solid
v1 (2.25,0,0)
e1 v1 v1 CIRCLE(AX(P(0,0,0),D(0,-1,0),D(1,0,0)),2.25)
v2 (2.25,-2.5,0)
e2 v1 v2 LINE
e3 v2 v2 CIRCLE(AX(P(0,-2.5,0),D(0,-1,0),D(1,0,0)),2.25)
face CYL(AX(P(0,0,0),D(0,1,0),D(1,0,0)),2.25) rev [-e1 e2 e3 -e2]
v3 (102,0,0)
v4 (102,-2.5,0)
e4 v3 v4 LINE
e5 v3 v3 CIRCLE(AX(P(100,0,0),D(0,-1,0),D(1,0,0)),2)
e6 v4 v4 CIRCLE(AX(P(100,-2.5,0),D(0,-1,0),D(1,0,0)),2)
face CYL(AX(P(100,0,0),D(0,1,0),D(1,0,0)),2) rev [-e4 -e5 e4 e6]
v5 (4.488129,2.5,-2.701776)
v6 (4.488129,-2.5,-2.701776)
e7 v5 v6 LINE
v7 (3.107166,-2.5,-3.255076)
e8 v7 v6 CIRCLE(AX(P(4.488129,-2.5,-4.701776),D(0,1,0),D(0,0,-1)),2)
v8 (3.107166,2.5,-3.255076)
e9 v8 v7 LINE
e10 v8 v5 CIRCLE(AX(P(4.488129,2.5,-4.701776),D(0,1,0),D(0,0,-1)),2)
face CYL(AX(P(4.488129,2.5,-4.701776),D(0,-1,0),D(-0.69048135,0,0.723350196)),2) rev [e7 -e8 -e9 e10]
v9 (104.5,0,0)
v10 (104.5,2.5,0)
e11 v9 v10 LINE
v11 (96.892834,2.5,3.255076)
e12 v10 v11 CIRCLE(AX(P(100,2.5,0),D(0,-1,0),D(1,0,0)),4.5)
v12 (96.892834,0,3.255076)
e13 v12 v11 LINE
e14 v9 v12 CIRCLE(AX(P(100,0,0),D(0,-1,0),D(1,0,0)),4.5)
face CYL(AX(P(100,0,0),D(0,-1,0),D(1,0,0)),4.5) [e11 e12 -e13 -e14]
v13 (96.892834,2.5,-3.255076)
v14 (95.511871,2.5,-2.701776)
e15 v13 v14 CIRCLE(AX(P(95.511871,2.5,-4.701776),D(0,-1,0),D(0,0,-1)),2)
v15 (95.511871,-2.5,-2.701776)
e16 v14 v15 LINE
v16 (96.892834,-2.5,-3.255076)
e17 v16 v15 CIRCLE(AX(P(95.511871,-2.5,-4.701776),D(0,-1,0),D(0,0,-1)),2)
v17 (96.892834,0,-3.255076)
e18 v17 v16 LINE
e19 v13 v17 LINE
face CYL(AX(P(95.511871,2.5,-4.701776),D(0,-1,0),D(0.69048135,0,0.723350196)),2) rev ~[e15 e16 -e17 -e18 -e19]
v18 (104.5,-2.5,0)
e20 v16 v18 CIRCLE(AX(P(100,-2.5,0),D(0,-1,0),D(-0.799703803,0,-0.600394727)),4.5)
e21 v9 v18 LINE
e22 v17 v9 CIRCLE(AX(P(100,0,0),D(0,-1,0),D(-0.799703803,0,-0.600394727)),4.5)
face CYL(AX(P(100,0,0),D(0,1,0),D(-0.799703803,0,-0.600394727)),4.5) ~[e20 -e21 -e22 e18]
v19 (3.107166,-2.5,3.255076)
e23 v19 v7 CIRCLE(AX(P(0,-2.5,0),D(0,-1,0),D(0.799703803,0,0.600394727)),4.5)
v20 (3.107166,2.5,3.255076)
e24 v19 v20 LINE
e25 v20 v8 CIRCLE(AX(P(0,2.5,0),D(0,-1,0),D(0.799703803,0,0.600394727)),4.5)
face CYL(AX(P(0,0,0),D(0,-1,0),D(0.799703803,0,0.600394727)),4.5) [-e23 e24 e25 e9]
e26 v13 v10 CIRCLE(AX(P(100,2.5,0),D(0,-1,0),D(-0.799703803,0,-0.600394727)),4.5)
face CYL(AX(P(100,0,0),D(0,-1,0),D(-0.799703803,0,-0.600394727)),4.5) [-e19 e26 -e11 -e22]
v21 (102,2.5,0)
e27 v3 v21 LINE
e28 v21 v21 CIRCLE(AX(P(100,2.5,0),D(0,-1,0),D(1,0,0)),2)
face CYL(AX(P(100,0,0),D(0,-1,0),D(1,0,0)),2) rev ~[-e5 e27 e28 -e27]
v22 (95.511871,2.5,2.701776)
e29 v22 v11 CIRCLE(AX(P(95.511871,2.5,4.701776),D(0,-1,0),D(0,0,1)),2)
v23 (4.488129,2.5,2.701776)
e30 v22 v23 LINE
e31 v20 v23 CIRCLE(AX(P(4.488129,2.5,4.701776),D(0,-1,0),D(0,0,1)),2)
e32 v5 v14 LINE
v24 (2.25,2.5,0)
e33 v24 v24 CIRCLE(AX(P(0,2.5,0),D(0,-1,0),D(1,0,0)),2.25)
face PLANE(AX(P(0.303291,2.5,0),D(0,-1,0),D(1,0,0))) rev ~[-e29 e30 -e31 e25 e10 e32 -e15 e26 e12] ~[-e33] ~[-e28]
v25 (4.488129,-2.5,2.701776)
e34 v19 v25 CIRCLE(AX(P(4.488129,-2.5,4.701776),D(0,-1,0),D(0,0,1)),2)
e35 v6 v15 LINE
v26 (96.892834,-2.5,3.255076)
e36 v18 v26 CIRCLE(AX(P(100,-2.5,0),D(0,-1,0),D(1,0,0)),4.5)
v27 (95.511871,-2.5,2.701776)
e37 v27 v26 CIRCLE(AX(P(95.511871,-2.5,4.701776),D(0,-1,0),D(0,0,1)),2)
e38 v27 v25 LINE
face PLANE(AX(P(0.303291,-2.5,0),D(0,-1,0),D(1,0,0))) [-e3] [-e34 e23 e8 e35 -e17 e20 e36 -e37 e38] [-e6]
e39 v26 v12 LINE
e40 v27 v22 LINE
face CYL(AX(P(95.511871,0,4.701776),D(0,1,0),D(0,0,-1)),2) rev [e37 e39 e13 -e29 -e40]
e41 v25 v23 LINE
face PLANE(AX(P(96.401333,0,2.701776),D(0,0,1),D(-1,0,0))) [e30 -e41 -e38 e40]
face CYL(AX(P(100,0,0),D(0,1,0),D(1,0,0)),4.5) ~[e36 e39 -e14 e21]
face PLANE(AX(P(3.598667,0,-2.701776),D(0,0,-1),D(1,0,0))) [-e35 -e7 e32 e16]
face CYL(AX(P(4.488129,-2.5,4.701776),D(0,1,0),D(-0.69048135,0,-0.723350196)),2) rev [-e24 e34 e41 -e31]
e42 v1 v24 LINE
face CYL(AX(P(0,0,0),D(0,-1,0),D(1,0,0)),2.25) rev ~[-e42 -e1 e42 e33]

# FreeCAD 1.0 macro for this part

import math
import FreeCAD as App
import Part
import Sketcher

V = App.Vector
Q = App.Units.Quantity


def edges_at(feature, points):
    """Names of the edges that pass closest to the given points."""
    edges = feature.Shape.Edges
    near = lambda p: min(range(len(edges)), key=lambda i: edges[i].distToShape(Part.Vertex(*p))[0])
    return sorted({f"Edge{near(p) + 1}" for p in points})

doc = App.newDocument("Part")
body = doc.addObject("PartDesign::Body", "Body")

# Sketch on XZ plane
sketch1 = doc.addObject("Sketcher::SketchObject", "Sketch")
body.addObject(sketch1)
sketch1.AttachmentSupport = (doc.XZ_Plane, [""])
sketch1.MapMode = "FlatFace"
sketch1.addGeometry([
    Part.ArcOfCircle(Part.Circle(V(0, 0, 0), V(0, 0, 1), 4.5), math.radians(37), math.radians(323)),  # 0
    Part.LineSegment(V(3.6, -2.7, 0), V(96.4, -2.7, 0)),  # 1
    Part.ArcOfCircle(Part.Circle(V(100, 0, 0), V(0, 0, 1), 4.5), math.radians(-143), math.radians(0)),  # 2
    Part.ArcOfCircle(Part.Circle(V(100, 0, 0), V(0, 0, 1), 4.5), math.radians(0), math.radians(143)),  # 3
    Part.LineSegment(V(96.4, 2.7, 0), V(3.6, 2.7, 0)),  # 4
    Part.Circle(V(0, 0, 0), V(0, 0, 1), 2.2),  # 5
    Part.Circle(V(100, 0, 0), V(0, 0, 1), 2),  # 6
], False)
sketch1.addConstraint([
    Sketcher.Constraint("Coincident", 0, 2, 1, 1),
    Sketcher.Constraint("Coincident", 1, 2, 2, 1),
    Sketcher.Constraint("Tangent", 2, 2, 3, 1),
    Sketcher.Constraint("Coincident", 3, 2, 4, 1),
    Sketcher.Constraint("Coincident", 4, 2, 0, 1),
    Sketcher.Constraint("Horizontal", 1),
    Sketcher.Constraint("Horizontal", 4),
    Sketcher.Constraint("Coincident", 0, 3, -1, 1),
    Sketcher.Constraint("Coincident", 5, 3, -1, 1),
    Sketcher.Constraint("Coincident", 6, 3, 2, 3),
    Sketcher.Constraint("Equal", 0, 2),
    Sketcher.Constraint("Equal", 2, 3),
    Sketcher.Constraint("Symmetric", 1, 2, 3, 2, -1),
    Sketcher.Constraint("PointOnObject", 2, 2, -1),
    Sketcher.Constraint("Diameter", 6, Q("4 mm")),
    Sketcher.Constraint("Diameter", 5, Q("4.5 mm")),
    Sketcher.Constraint("Radius", 0, Q("4.5 mm")),
    Sketcher.Constraint("DistanceX", -1, 1, 2, 3, Q("100 mm")),
    Sketcher.Constraint("DistanceX", 1, 1, 1, 2, Q("92.802666 mm")),
])
pad1 = doc.addObject("PartDesign::Pad", "Pad")
body.addObject(pad1)
pad1.Profile = sketch1
pad1.Length = 5
pad1.Midplane = True
doc.recompute()

fillet = doc.addObject("PartDesign::Fillet", "Fillet")
body.addObject(fillet)
fillet.Base = (pad1, edges_at(pad1, [
    (3.599, 0, 2.702),
    (96.401, 1.25, 2.702),
    (3.599, 0, -2.702),
    (96.401, -1.25, -2.702),
]))
fillet.Radius = 2

doc.recompute()
